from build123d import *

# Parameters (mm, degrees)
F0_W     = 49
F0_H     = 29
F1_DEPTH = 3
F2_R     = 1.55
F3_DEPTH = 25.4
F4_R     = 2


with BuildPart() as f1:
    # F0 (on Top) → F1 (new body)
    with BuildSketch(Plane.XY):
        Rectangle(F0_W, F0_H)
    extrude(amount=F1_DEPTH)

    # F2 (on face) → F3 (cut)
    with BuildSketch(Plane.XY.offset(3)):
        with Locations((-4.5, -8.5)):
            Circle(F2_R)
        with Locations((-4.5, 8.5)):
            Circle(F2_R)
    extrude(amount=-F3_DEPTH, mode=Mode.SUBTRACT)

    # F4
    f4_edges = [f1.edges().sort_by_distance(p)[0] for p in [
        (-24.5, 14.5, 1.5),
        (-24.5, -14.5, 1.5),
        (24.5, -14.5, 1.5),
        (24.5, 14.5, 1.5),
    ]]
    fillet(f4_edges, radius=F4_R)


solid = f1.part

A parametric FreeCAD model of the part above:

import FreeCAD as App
import Part
import Sketcher
Q = App.Units.Quantity


def edges_at(feature, points):
    """Names of the edges that pass closest to the given points."""
    edges = feature.Shape.Edges
    near = lambda p: min(range(len(edges)), key=lambda i: edges[i].distToShape(Part.Vertex(*p))[0])
    return sorted({f"Edge{near(p) + 1}" for p in points})


def add_polygon(sketch, points):
    """Adds a closed chain of lines whose ends are joined by coincident constraints."""
    first, n = sketch.GeometryCount, len(points)
    for a, b in zip(points, points[1:] + points[:1]):
        sketch.addGeometry(Part.LineSegment(App.Vector(*a, 0), App.Vector(*b, 0)), False)
    for i in range(n):
        sketch.addConstraint(Sketcher.Constraint("Coincident", first + i, 2, first + (i + 1) % n, 1))

doc = App.newDocument("Part")
body = doc.addObject("PartDesign::Body", "Body")

# Sketch on XY plane
sketch1 = body.newObject("Sketcher::SketchObject", "Sketch")
sketch1.AttachmentSupport = (doc.getObject("XY_Plane"), [""])
sketch1.MapMode = "FlatFace"
add_polygon(sketch1, [(-24.5, 14.5), (-24.5, -14.5), (24.5, -14.5), (24.5, 14.5)])  # lines 0-3
sketch1.addConstraint(Sketcher.Constraint("Vertical", 0))
sketch1.addConstraint(Sketcher.Constraint("Horizontal", 1))
sketch1.addConstraint(Sketcher.Constraint("Vertical", 2))
sketch1.addConstraint(Sketcher.Constraint("Horizontal", 3))
sketch1.addConstraint(Sketcher.Constraint("Symmetric", 0, 2, 2, 2, -1, 1))
sketch1.addConstraint(Sketcher.Constraint("DistanceX", 1, 1, 1, 2, Q("49 mm")))
sketch1.addConstraint(Sketcher.Constraint("DistanceY", 0, 2, 0, 1, Q("29 mm")))
pad1 = body.newObject("PartDesign::Pad", "Pad")
pad1.Profile = sketch1
pad1.Length = 3

# Sketch on XY plane
sketch2 = body.newObject("Sketcher::SketchObject", "Sketch001")
sketch2.AttachmentSupport = (doc.getObject("XY_Plane"), [""])
sketch2.MapMode = "FlatFace"
sketch2.AttachmentOffset = App.Placement(App.Vector(0, 0, 3), App.Rotation())
sketch2.addGeometry(Part.Circle(App.Vector(-4.5, -8.5, 0), App.Vector(0, 0, 1), 1.55), False)
sketch2.addGeometry(Part.Circle(App.Vector(-4.5, 8.5, 0), App.Vector(0, 0, 1), 1.55), False)
sketch2.addConstraint(Sketcher.Constraint("Equal", 0, 1))
sketch2.addConstraint(Sketcher.Constraint("Symmetric", 0, 3, 1, 3, -1))
sketch2.addConstraint(Sketcher.Constraint("Diameter", 0, Q("3.1 mm")))
sketch2.addConstraint(Sketcher.Constraint("DistanceY", 0, 3, 1, 3, Q("17 mm")))
sketch2.addConstraint(Sketcher.Constraint("DistanceX", 0, 3, -1, 1, Q("4.5 mm")))
pocket1 = body.newObject("PartDesign::Pocket", "Pocket")
pocket1.Profile = sketch2
pocket1.Length = 25.4
doc.recompute()

fillet = body.newObject("PartDesign::Fillet", "Fillet")
fillet.Base = (pocket1, edges_at(pocket1, [
    (-24.5, 14.5, 1.5),
    (-24.5, -14.5, 1.5),
    (24.5, -14.5, 1.5),
    (24.5, 14.5, 1.5),
]))
fillet.Radius = 2

doc.recompute()
